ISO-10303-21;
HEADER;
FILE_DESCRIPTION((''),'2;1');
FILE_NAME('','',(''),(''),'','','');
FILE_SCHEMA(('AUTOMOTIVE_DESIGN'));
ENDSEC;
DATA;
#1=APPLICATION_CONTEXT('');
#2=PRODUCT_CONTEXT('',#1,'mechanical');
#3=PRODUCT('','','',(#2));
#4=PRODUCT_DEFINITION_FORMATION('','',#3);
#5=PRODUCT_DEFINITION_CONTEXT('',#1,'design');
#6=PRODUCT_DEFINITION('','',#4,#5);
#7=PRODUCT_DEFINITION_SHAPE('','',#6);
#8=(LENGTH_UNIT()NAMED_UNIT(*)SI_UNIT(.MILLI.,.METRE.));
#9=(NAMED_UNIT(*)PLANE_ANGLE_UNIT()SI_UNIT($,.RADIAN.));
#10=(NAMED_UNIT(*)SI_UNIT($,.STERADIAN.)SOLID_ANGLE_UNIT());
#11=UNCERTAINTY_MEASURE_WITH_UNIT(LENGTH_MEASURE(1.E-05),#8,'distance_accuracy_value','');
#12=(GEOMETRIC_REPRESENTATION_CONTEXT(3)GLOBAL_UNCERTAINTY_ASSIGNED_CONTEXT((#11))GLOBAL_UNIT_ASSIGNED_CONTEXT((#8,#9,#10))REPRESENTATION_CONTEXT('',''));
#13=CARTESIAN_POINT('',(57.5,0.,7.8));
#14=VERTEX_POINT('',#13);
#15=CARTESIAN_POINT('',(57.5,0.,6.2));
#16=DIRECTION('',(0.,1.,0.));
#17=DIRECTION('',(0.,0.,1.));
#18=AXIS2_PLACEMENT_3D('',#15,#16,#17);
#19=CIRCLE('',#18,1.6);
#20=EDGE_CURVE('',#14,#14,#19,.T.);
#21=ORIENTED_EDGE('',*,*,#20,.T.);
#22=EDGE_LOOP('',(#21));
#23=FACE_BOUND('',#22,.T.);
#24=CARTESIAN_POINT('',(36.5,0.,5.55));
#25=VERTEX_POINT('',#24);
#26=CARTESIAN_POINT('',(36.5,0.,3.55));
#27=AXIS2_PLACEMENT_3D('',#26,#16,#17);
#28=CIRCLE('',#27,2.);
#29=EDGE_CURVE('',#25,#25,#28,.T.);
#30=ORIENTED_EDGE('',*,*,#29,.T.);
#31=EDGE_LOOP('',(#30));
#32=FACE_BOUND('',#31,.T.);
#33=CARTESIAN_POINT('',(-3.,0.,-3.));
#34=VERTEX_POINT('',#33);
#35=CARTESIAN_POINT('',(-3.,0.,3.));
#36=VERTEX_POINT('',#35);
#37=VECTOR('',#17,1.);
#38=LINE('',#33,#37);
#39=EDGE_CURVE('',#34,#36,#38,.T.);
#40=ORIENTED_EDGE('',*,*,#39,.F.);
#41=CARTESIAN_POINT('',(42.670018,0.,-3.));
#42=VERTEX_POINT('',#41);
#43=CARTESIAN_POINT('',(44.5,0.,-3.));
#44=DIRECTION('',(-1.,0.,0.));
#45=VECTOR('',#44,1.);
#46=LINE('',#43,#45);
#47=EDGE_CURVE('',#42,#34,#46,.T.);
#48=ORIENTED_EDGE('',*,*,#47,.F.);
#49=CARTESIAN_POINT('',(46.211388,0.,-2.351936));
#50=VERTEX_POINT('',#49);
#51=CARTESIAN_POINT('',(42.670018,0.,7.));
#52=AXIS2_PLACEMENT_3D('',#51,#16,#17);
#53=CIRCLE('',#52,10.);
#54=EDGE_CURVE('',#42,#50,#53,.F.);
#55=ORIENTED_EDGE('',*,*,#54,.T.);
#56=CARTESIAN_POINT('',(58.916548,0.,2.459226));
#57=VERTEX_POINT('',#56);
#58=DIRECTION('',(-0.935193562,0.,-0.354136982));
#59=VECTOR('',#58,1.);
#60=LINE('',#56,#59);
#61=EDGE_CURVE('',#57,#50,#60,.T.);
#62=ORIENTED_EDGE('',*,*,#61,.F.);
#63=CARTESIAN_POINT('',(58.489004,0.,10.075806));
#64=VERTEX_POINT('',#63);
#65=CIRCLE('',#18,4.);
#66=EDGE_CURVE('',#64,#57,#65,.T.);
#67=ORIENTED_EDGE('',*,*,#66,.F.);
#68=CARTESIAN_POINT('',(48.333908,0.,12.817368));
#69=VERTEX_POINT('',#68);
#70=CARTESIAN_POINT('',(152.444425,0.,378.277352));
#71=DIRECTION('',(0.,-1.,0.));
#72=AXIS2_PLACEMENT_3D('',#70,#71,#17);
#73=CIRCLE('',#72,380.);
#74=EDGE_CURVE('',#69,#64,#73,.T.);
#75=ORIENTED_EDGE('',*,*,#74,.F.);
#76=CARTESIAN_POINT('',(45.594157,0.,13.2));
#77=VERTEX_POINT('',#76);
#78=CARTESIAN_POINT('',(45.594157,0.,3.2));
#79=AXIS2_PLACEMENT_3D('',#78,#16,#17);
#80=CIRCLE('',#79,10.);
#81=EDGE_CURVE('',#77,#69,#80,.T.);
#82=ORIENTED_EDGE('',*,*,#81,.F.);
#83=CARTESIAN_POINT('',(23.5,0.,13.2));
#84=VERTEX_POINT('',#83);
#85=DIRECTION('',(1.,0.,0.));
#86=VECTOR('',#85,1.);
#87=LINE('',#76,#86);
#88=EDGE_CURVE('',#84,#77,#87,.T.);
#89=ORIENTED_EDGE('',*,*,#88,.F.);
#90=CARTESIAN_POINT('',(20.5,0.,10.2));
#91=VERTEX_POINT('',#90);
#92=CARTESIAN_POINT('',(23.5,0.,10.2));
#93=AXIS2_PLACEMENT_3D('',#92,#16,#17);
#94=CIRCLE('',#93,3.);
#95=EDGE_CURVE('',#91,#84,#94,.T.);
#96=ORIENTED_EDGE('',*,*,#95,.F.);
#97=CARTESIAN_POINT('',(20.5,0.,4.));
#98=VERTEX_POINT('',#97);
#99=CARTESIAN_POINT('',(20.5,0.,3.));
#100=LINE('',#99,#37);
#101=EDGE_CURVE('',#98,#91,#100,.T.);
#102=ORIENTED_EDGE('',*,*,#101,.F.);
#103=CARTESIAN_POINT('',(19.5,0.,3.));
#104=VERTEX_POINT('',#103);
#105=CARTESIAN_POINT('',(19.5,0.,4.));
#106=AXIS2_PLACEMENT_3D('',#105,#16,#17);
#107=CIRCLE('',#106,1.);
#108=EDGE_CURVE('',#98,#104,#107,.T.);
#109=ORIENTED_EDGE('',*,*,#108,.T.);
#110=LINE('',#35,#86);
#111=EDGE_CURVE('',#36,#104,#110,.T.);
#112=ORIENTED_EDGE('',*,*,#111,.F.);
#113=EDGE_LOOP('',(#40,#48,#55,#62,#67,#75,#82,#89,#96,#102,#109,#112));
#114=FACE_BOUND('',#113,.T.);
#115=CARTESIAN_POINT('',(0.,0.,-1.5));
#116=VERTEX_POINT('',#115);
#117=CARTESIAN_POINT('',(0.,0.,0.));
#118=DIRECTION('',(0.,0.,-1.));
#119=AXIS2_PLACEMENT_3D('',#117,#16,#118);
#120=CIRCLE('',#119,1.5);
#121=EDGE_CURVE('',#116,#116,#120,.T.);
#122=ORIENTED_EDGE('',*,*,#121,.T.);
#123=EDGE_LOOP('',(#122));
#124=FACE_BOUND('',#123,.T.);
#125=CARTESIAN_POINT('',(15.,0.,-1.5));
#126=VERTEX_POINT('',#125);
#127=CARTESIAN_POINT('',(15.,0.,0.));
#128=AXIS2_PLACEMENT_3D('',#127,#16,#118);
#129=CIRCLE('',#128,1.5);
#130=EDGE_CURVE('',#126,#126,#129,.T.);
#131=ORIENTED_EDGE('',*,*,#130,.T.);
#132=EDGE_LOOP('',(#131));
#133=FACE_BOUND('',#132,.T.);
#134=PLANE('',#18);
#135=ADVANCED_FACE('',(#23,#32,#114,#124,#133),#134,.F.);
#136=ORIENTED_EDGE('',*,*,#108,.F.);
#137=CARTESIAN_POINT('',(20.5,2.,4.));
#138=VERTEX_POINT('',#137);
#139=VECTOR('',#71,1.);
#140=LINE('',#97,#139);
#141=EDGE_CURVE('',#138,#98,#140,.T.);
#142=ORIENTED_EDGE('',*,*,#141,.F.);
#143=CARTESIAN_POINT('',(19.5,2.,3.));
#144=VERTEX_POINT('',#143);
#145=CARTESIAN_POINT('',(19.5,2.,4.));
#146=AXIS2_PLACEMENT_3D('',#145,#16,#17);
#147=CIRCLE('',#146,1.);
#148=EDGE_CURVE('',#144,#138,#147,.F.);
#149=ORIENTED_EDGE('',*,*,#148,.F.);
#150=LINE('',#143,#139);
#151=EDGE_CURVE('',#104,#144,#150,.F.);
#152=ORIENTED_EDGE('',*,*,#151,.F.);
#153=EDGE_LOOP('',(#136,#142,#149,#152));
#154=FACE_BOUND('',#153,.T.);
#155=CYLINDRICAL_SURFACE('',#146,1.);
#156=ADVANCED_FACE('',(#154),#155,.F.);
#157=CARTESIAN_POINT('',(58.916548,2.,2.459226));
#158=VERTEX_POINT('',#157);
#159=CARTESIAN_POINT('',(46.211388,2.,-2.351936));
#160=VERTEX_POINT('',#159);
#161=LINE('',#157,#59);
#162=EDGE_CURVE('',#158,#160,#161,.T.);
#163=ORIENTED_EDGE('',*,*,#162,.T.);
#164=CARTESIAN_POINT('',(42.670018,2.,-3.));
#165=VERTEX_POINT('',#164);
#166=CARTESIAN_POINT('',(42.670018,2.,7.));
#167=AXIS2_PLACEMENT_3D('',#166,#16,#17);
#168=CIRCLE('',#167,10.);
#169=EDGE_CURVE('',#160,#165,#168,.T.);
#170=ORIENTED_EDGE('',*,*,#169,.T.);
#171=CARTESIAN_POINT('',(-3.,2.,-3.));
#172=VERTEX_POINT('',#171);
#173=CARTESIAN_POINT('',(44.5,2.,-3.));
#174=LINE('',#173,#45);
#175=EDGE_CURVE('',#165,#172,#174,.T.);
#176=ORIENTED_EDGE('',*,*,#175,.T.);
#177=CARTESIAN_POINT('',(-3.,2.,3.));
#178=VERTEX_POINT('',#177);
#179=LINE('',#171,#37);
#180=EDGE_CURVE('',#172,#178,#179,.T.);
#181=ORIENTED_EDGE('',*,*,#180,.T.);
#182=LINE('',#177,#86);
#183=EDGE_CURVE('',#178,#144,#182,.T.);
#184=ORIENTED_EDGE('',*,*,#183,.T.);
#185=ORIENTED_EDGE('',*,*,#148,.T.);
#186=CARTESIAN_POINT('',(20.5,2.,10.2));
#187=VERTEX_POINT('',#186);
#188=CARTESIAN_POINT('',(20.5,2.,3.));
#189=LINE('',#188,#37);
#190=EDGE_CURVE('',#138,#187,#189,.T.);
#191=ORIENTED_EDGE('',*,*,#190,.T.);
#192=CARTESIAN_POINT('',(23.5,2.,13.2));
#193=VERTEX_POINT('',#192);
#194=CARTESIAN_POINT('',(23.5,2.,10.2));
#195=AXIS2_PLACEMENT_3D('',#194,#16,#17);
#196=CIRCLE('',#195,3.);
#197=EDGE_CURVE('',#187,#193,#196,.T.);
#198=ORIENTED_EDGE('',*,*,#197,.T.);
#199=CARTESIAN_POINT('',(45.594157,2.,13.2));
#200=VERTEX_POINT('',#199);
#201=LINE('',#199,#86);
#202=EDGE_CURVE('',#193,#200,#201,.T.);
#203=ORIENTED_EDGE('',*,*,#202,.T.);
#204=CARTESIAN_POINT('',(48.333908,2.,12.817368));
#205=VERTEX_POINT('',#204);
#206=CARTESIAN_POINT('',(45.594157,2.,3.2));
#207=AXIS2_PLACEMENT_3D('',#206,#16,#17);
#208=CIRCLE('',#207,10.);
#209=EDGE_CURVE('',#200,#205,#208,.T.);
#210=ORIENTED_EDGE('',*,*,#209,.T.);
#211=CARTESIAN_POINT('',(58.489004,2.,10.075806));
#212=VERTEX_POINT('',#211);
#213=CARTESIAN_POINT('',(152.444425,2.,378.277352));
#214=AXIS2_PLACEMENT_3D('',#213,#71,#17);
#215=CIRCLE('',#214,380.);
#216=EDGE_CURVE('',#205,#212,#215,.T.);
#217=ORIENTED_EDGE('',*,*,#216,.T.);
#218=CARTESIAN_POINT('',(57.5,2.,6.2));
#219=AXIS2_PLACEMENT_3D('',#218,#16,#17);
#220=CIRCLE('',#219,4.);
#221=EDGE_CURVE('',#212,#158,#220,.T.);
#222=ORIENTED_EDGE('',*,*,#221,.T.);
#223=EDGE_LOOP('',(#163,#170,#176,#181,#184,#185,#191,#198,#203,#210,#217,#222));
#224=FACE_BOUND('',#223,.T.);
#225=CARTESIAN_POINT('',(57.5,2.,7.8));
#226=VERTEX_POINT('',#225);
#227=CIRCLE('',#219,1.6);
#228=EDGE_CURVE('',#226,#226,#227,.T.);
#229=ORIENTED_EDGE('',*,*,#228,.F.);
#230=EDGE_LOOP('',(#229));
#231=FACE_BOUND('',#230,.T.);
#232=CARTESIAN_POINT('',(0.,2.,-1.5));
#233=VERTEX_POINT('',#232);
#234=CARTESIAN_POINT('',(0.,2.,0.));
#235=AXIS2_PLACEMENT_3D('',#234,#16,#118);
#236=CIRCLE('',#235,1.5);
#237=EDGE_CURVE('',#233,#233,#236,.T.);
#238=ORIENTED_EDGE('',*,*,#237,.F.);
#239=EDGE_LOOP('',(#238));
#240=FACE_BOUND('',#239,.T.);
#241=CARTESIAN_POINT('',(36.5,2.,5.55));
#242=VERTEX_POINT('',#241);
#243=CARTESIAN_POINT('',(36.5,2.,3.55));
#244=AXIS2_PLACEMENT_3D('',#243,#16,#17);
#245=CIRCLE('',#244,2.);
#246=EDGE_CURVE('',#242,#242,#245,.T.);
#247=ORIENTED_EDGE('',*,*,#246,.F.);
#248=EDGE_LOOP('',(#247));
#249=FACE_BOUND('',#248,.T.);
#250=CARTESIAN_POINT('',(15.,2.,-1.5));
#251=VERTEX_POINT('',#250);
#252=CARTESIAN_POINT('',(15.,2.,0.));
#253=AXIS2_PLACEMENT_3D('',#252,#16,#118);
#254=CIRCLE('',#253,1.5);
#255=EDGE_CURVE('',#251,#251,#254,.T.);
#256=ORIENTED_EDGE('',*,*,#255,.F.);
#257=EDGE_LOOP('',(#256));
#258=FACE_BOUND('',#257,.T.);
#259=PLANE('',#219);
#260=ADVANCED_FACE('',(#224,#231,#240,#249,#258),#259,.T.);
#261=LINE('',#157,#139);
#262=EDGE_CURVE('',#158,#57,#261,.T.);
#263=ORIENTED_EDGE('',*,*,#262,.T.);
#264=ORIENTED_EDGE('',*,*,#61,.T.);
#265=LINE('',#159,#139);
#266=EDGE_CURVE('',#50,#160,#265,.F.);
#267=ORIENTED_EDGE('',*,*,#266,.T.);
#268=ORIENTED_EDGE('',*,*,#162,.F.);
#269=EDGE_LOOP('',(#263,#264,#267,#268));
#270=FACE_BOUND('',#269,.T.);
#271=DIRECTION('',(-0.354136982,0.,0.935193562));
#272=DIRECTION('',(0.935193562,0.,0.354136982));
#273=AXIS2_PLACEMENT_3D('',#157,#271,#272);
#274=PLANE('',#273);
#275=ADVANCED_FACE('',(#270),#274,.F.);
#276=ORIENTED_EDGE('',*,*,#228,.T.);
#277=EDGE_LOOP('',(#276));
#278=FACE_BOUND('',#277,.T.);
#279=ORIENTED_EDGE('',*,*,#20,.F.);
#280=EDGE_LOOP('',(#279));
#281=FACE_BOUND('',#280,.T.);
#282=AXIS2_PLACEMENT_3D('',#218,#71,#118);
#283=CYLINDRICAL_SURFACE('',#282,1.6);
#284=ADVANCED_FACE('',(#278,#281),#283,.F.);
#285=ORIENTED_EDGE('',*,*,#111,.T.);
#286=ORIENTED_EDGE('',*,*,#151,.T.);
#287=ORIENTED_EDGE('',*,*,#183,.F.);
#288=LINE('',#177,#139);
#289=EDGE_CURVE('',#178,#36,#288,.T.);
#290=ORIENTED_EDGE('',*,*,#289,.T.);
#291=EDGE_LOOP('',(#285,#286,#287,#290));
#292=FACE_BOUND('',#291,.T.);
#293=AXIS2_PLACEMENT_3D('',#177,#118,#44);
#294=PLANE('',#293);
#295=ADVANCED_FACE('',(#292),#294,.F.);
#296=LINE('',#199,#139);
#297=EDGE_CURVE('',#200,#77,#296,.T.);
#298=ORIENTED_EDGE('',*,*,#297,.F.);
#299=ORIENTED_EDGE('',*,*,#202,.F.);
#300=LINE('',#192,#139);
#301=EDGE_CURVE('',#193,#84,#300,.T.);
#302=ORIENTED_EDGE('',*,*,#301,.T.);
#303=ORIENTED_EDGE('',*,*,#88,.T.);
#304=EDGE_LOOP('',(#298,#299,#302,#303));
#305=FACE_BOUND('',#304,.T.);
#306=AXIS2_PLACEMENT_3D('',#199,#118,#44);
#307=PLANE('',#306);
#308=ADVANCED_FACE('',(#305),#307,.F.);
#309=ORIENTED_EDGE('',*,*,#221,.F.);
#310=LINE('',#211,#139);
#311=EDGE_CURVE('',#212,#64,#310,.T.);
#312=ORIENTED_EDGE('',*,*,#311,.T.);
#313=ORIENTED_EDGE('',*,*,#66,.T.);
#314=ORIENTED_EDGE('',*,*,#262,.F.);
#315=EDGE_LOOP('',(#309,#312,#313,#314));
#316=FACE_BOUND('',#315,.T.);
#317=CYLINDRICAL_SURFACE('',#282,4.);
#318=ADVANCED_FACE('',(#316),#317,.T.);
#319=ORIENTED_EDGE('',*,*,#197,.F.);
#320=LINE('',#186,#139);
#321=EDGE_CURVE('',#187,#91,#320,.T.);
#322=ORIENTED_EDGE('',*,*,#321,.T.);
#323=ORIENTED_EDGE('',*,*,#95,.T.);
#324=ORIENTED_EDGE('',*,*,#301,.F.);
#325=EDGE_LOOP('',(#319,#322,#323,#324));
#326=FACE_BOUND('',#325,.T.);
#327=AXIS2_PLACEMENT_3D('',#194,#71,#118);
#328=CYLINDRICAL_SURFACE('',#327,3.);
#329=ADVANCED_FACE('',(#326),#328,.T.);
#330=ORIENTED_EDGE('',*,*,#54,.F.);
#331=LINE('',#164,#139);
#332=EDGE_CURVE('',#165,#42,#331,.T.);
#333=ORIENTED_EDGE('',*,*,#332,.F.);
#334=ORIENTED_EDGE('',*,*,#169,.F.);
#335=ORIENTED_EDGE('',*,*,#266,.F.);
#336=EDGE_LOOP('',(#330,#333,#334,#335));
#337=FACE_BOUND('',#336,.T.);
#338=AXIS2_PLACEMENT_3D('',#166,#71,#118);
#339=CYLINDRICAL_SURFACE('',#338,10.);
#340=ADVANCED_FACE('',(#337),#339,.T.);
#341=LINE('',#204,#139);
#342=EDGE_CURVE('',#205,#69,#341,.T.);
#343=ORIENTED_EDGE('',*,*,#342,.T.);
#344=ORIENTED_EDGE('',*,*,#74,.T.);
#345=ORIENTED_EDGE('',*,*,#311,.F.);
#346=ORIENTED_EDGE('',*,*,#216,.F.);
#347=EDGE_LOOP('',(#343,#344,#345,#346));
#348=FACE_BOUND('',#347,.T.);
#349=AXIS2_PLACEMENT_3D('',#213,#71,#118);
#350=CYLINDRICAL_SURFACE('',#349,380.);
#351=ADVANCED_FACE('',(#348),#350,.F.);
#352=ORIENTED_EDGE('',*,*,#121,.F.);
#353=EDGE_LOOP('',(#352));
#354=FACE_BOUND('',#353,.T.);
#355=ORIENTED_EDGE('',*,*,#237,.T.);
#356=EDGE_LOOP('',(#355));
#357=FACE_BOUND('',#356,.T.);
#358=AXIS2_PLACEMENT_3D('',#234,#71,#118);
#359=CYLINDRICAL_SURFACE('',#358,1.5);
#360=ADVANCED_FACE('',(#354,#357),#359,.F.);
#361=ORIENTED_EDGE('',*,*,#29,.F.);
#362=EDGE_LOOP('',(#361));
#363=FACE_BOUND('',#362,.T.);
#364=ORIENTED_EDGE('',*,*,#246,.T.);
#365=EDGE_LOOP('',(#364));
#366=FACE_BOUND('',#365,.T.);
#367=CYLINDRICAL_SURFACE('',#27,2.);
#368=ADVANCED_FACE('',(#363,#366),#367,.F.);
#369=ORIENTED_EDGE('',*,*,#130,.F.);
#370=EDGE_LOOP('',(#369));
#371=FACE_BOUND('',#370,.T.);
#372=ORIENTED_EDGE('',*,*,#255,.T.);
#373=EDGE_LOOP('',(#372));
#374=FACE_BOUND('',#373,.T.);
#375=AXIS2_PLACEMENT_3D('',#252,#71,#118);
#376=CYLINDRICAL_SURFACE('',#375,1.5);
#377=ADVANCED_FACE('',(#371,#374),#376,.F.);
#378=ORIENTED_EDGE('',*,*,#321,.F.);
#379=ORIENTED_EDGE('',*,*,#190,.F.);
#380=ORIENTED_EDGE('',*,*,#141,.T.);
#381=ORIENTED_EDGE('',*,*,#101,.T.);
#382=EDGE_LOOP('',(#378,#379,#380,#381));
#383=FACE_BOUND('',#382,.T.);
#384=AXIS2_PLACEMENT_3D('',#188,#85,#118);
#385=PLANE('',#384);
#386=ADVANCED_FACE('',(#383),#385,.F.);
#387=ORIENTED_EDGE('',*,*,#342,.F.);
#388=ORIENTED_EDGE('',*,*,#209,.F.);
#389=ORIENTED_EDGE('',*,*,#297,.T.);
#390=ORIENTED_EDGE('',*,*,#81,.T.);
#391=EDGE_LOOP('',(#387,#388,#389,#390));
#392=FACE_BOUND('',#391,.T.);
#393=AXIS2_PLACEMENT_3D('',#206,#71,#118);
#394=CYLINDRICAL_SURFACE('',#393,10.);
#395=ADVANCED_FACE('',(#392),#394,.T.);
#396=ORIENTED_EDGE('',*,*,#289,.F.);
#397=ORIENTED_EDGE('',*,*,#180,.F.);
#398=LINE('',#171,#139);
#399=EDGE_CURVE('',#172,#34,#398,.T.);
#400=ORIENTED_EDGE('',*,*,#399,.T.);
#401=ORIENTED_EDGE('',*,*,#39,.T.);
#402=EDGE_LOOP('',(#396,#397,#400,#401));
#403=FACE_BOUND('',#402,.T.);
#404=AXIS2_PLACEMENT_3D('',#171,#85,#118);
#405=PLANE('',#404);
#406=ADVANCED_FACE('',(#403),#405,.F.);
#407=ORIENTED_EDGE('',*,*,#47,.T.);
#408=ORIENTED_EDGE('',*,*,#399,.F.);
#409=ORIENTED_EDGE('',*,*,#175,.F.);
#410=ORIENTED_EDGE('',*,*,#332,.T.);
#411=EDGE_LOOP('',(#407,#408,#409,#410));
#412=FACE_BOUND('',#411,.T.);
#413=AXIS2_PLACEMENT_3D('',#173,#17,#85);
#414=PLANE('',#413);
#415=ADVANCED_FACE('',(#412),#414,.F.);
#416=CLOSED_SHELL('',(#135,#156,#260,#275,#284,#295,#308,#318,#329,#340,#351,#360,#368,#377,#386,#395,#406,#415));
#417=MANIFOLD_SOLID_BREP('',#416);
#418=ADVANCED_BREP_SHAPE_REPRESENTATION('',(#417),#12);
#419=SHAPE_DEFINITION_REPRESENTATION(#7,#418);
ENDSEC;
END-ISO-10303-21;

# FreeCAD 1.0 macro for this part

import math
import FreeCAD as App
import Part
import Sketcher
from FreeCAD import Vector


def edges_at(feature, points):
    """Names of the edges that pass closest to the given points."""
    edges = feature.Shape.Edges
    near = lambda p: min(range(len(edges)), key=lambda i: edges[i].distToShape(Part.Vertex(*p))[0])
    return sorted({f"Edge{near(p) + 1}" for p in points})

doc = App.newDocument("Part")
body = doc.addObject("PartDesign::Body", "Body")

# Sketch on XZ plane
sketch1 = body.newObject("Sketcher::SketchObject", "Sketch")
sketch1.AttachmentSupport = (doc.getObject("XZ_Plane"), [""])
sketch1.MapMode = "FlatFace"
sketch1.addGeometry([
    Part.LineSegment(Vector(44.5, -3, 0), Vector(-3, -3, 0)),  # 0
    Part.LineSegment(Vector(-3, -3, 0), Vector(-3, 3, 0)),  # 1
    Part.LineSegment(Vector(-3, 3, 0), Vector(20.5, 3, 0)),  # 2
    Part.LineSegment(Vector(20.5, 3, 0), Vector(20.5, 10.2, 0)),  # 3
    Part.ArcOfCircle(Part.Circle(Vector(23.5, 10.2, 0), Vector(0, 0, 1), 3), math.radians(90), math.radians(180)),  # 4
    Part.LineSegment(Vector(23.5, 13.2, 0), Vector(45.6, 13.2, 0)),  # 5
    Part.ArcOfCircle(Part.Circle(Vector(45.6, 3.2, 0), Vector(0, 0, 1), 10), math.radians(74.1), math.radians(90)),  # 6
    Part.ArcOfCircle(Part.Circle(Vector(152.4, 378.3, 0), Vector(0, 0, 1), 380), math.radians(-105.9), math.radians(-104.31)),  # 7
    Part.ArcOfCircle(Part.Circle(Vector(57.5, 6.2, 0), Vector(0, 0, 1), 4), math.radians(-69), math.radians(76)),  # 8
    Part.LineSegment(Vector(58.9, 2.5, 0), Vector(44.5, -3, 0)),  # 9
    Part.Circle(Vector(57.5, 6.2, 0), Vector(0, 0, 1), 1.6),  # 10
    Part.Circle(Vector(0, 0, 0), Vector(0, 0, 1), 1.5),  # 11
    Part.Circle(Vector(15, 0, 0), Vector(0, 0, 1), 1.5),  # 12
], False)
sketch1.addConstraint([
    Sketcher.Constraint("Coincident", 0, 2, 1, 1),
    Sketcher.Constraint("Coincident", 1, 2, 2, 1),
    Sketcher.Constraint("Coincident", 2, 2, 3, 1),
    Sketcher.Constraint("Tangent", 3, 2, 4, 2),
    Sketcher.Constraint("Tangent", 4, 1, 5, 1),
    Sketcher.Constraint("Tangent", 5, 2, 6, 2),
    Sketcher.Constraint("Tangent", 6, 1, 7, 1),
    Sketcher.Constraint("Tangent", 7, 2, 8, 2),
    Sketcher.Constraint("Tangent", 8, 1, 9, 1),
    Sketcher.Constraint("Coincident", 9, 2, 0, 1),
    Sketcher.Constraint("Horizontal", 0),
    Sketcher.Constraint("Vertical", 1),
    Sketcher.Constraint("Horizontal", 2),
    Sketcher.Constraint("Vertical", 3),
    Sketcher.Constraint("Horizontal", 5),
    Sketcher.Constraint("Coincident", 11, 3, -1, 1),
    Sketcher.Constraint("Coincident", 10, 3, 8, 3),
    Sketcher.Constraint("Equal", 11, 12),
    Sketcher.Constraint("PointOnObject", 12, 3, -1),
    Sketcher.Constraint("Diameter", 11, 3.0),
    Sketcher.Constraint("Radius", 4, 3.0),
    Sketcher.Constraint("Radius", 6, 10.0),
    Sketcher.Constraint("Radius", 8, 4.0),
    Sketcher.Constraint("Diameter", 10, 3.2),
    Sketcher.Constraint("DistanceY", 1, 1, 1, 2, 6.0),
    Sketcher.Constraint("DistanceX", 0, 2, 0, 1, 47.5),
    Sketcher.Constraint("DistanceX", 2, 1, 2, 2, 23.5),
    Sketcher.Constraint("DistanceY", 3, 1, 3, 2, 7.2),
    Sketcher.Constraint("DistanceX", -1, 1, 12, 3, 15.0),
    Sketcher.Constraint("DistanceX", 0, 2, -1, 1, 3.0),
    Sketcher.Constraint("DistanceY", 0, 2, -1, 1, 3.0),
    Sketcher.Constraint("DistanceY", 6, 3, 8, 3, 3.0),
    Sketcher.Constraint("DistanceX", 4, 3, 8, 3, 34.0),
    Sketcher.Constraint("Radius", 7, 379.999995),
    Sketcher.Constraint("DistanceX", 5, 1, 5, 2, 22.094157),
])
pad1 = body.newObject("PartDesign::Pad", "Pad")
pad1.Profile = sketch1
pad1.Length = 2
pad1.Reversed = True
doc.recompute()

fillet = body.newObject("PartDesign::Fillet", "Fillet")
fillet.Base = (pad1, edges_at(pad1, [(20.5, 1, 3)]))
fillet.Radius = 1
doc.recompute()

fillet2 = body.newObject("PartDesign::Fillet", "Fillet001")
fillet2.Base = (fillet, edges_at(fillet, [(44.5, 1, -3)]))
fillet2.Radius = 10

# Sketch on XZ plane
sketch2 = body.newObject("Sketcher::SketchObject", "Sketch001")
sketch2.AttachmentSupport = (doc.getObject("XZ_Plane"), [""])
sketch2.MapMode = "FlatFace"
sketch2.AttachmentOffset = App.Placement(Vector(0, 0, -2), App.Rotation())
sketch2.addGeometry(Part.Circle(Vector(36.5, 3.5, 0), Vector(0, 0, 1), 2), False)
sketch2.addConstraint([
    Sketcher.Constraint("Diameter", 0, 4.0),
    Sketcher.Constraint("DistanceX", -1, 1, 0, 3, 36.5),
    Sketcher.Constraint("DistanceY", -1, 1, 0, 3, 3.55),
])
pocket1 = body.newObject("PartDesign::Pocket", "Pocket")
pocket1.Profile = sketch2
pocket1.Type = "ThroughAll"
pocket1.Reversed = True

doc.recompute()
